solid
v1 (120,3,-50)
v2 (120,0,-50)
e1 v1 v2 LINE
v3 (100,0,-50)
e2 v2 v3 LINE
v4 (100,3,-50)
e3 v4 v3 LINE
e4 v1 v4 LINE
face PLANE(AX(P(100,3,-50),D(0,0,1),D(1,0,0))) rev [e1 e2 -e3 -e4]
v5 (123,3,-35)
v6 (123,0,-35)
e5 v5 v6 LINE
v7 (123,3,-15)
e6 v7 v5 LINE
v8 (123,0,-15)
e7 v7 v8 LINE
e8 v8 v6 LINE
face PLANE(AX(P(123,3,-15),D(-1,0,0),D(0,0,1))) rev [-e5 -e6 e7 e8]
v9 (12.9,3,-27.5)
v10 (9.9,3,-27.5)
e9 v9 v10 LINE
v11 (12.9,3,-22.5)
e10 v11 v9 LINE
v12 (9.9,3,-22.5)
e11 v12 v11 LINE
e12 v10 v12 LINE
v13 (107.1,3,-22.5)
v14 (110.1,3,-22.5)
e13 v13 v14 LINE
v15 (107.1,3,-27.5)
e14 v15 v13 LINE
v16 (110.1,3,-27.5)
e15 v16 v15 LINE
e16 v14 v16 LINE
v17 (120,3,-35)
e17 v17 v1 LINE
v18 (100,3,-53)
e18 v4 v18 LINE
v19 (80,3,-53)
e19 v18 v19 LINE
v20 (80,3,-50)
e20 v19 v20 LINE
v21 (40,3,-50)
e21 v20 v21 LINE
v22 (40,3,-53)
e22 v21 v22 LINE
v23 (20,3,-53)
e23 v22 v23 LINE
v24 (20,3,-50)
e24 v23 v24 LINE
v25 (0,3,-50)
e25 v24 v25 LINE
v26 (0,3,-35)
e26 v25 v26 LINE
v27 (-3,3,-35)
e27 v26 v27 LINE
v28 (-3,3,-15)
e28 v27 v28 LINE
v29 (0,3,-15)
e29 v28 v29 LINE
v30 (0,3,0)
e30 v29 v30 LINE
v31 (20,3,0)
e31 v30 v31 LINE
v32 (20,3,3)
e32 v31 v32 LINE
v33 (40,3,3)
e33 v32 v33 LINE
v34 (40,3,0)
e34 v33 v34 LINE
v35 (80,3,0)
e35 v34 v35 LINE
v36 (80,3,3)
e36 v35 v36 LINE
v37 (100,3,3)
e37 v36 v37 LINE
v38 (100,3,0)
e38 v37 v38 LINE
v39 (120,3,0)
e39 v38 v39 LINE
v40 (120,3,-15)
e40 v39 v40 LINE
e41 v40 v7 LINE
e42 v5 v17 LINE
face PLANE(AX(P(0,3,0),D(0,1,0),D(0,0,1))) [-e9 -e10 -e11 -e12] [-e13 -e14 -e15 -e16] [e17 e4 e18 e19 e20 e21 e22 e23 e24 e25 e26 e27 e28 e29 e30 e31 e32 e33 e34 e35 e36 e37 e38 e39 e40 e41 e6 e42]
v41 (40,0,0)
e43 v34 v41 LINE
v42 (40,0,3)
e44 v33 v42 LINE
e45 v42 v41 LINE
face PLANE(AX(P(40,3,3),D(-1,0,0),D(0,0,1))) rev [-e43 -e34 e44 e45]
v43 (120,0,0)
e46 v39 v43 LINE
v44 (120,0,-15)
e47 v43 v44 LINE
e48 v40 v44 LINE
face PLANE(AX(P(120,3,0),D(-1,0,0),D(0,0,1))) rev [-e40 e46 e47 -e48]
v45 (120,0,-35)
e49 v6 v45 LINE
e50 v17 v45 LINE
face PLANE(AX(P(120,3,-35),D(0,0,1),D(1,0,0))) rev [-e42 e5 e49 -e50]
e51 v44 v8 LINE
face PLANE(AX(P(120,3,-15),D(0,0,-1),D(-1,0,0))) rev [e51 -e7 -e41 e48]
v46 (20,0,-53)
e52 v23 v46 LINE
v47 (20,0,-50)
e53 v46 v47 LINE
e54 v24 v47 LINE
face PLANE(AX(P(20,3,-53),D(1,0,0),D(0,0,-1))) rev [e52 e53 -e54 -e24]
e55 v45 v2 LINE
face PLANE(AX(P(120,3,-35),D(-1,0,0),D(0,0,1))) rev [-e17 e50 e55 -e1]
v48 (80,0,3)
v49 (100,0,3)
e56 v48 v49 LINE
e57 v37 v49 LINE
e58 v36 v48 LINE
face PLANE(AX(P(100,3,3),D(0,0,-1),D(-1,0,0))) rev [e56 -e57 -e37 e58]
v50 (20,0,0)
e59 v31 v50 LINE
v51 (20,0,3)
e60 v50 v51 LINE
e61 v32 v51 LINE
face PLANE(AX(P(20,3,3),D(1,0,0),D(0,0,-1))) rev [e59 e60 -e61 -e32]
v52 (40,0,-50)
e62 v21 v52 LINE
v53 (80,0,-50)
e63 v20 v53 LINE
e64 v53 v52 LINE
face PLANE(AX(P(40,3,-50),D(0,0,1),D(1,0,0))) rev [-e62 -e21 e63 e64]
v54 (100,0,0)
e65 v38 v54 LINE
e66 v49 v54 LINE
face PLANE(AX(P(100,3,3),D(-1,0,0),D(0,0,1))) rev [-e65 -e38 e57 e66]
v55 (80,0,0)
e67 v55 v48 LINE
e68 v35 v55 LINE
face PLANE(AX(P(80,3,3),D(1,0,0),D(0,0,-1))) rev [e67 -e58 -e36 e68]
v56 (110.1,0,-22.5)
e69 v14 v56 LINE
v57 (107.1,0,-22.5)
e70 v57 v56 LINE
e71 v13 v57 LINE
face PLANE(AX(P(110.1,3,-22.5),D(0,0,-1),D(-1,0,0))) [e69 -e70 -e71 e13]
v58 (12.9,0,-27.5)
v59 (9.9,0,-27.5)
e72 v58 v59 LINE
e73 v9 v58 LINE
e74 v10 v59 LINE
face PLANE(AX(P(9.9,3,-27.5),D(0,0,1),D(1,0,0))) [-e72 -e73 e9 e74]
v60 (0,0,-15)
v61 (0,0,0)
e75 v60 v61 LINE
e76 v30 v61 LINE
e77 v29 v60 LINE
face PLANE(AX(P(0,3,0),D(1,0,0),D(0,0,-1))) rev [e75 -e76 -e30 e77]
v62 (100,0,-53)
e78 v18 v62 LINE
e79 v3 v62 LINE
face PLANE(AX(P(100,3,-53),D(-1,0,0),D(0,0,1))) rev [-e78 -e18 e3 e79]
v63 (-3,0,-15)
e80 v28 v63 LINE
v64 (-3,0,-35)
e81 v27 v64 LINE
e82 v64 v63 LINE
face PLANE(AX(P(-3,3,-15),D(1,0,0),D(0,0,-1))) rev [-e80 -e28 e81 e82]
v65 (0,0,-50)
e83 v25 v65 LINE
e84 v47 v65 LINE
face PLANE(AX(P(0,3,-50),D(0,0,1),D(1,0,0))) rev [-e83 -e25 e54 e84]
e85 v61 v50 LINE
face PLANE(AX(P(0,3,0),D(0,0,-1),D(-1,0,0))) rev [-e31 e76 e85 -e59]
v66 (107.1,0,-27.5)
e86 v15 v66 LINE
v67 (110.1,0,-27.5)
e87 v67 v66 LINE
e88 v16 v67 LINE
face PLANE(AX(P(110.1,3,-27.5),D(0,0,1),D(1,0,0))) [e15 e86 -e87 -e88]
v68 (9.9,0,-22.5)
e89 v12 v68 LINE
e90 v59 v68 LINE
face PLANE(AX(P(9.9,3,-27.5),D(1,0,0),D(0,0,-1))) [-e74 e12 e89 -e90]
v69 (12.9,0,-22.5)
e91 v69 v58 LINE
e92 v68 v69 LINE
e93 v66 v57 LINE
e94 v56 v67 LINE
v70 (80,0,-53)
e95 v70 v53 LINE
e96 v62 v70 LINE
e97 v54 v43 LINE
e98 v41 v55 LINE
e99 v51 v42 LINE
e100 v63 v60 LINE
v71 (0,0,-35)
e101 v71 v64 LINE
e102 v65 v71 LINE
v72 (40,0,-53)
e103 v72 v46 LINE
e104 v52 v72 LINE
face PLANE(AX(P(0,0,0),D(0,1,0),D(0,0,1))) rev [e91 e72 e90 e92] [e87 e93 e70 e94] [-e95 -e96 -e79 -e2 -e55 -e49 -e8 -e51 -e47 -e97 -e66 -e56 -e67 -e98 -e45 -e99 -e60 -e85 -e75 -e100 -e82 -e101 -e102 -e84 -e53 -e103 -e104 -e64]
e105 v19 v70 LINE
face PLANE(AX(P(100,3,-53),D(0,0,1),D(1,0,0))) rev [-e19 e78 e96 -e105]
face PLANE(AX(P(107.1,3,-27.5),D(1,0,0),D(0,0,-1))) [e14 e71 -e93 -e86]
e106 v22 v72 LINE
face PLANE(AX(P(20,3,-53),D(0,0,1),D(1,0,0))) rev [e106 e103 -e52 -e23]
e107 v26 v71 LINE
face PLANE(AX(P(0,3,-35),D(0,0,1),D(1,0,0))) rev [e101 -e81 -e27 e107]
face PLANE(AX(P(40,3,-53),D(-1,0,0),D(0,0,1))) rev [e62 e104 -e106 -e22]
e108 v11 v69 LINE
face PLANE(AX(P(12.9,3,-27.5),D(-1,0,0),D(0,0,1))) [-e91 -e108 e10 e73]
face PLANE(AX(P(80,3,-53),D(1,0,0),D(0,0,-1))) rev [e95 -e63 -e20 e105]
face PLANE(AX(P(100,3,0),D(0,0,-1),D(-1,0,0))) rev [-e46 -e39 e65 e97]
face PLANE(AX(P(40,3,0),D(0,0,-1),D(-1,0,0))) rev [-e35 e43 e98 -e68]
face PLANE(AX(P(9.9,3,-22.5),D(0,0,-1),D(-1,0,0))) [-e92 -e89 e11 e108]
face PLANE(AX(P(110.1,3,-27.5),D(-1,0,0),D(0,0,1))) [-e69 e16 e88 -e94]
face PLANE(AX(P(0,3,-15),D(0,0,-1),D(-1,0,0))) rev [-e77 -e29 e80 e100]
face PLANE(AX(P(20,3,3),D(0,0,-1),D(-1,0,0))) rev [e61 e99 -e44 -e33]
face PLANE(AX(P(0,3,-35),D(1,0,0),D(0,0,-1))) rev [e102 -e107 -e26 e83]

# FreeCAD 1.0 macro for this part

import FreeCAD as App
import Part
import Sketcher
Q = App.Units.Quantity

doc = App.newDocument("Part")
params = doc.addObject("Spreadsheet::Sheet", "Params")
for row, (alias, value) in enumerate([
    ("sketch1_width", "20 mm"),
    ("sketch1_width2", "40 mm"),
    ("sketch1_width3", "3 mm"),
    ("sketch1_height", "15 mm"),
    ("sketch1_height2", "5 mm"),
    ("pad1_length", "3 mm"),
], start=1):
    params.set(f"A{row}", alias)
    params.set(f"B{row}", "=" + value)
    params.setAlias(f"B{row}", alias)

body = doc.addObject("PartDesign::Body", "Body")

# Sketch on XZ plane
sketch1 = body.newObject("Sketcher::SketchObject", "Sketch")
sketch1.AttachmentSupport = (doc.getObject("XZ_Plane"), [""])
sketch1.MapMode = "FlatFace"
sketch1.addGeometry([
    Part.LineSegment(App.Vector(0, 0, 0), App.Vector(20, 0, 0)),  # 0
    Part.LineSegment(App.Vector(20, 0, 0), App.Vector(20, 3, 0)),  # 1
    Part.LineSegment(App.Vector(20, 3, 0), App.Vector(40, 3, 0)),  # 2
    Part.LineSegment(App.Vector(40, 3, 0), App.Vector(40, 0, 0)),  # 3
    Part.LineSegment(App.Vector(40, 0, 0), App.Vector(80, 0, 0)),  # 4
    Part.LineSegment(App.Vector(80, 0, 0), App.Vector(80, 3, 0)),  # 5
    Part.LineSegment(App.Vector(80, 3, 0), App.Vector(100, 3, 0)),  # 6
    Part.LineSegment(App.Vector(100, 3, 0), App.Vector(100, 0, 0)),  # 7
    Part.LineSegment(App.Vector(100, 0, 0), App.Vector(120, 0, 0)),  # 8
    Part.LineSegment(App.Vector(120, 0, 0), App.Vector(120, -15, 0)),  # 9
    Part.LineSegment(App.Vector(120, -15, 0), App.Vector(123, -15, 0)),  # 10
    Part.LineSegment(App.Vector(123, -15, 0), App.Vector(123, -35, 0)),  # 11
    Part.LineSegment(App.Vector(123, -35, 0), App.Vector(120, -35, 0)),  # 12
    Part.LineSegment(App.Vector(120, -35, 0), App.Vector(120, -50, 0)),  # 13
    Part.LineSegment(App.Vector(120, -50, 0), App.Vector(100, -50, 0)),  # 14
    Part.LineSegment(App.Vector(100, -50, 0), App.Vector(100, -53, 0)),  # 15
    Part.LineSegment(App.Vector(100, -53, 0), App.Vector(80, -53, 0)),  # 16
    Part.LineSegment(App.Vector(80, -53, 0), App.Vector(80, -50, 0)),  # 17
    Part.LineSegment(App.Vector(80, -50, 0), App.Vector(40, -50, 0)),  # 18
    Part.LineSegment(App.Vector(40, -50, 0), App.Vector(40, -53, 0)),  # 19
    Part.LineSegment(App.Vector(40, -53, 0), App.Vector(20, -53, 0)),  # 20
    Part.LineSegment(App.Vector(20, -53, 0), App.Vector(20, -50, 0)),  # 21
    Part.LineSegment(App.Vector(20, -50, 0), App.Vector(0, -50, 0)),  # 22
    Part.LineSegment(App.Vector(0, -50, 0), App.Vector(0, -35, 0)),  # 23
    Part.LineSegment(App.Vector(0, -35, 0), App.Vector(-3, -35, 0)),  # 24
    Part.LineSegment(App.Vector(-3, -35, 0), App.Vector(-3, -15, 0)),  # 25
    Part.LineSegment(App.Vector(-3, -15, 0), App.Vector(0, -15, 0)),  # 26
    Part.LineSegment(App.Vector(0, -15, 0), App.Vector(0, 0, 0)),  # 27
    Part.LineSegment(App.Vector(12.9, -22.5, 0), App.Vector(9.9, -22.5, 0)),  # 28
    Part.LineSegment(App.Vector(9.9, -22.5, 0), App.Vector(9.9, -27.5, 0)),  # 29
    Part.LineSegment(App.Vector(9.9, -27.5, 0), App.Vector(12.9, -27.5, 0)),  # 30
    Part.LineSegment(App.Vector(12.9, -27.5, 0), App.Vector(12.9, -22.5, 0)),  # 31
    Part.LineSegment(App.Vector(110.1, -22.5, 0), App.Vector(107.1, -22.5, 0)),  # 32
    Part.LineSegment(App.Vector(107.1, -22.5, 0), App.Vector(107.1, -27.5, 0)),  # 33
    Part.LineSegment(App.Vector(107.1, -27.5, 0), App.Vector(110.1, -27.5, 0)),  # 34
    Part.LineSegment(App.Vector(110.1, -27.5, 0), App.Vector(110.1, -22.5, 0)),  # 35
], False)
sketch1.addConstraint([
    Sketcher.Constraint("Coincident", 0, 2, 1, 1),
    Sketcher.Constraint("Coincident", 1, 2, 2, 1),
    Sketcher.Constraint("Coincident", 2, 2, 3, 1),
    Sketcher.Constraint("Coincident", 3, 2, 4, 1),
    Sketcher.Constraint("Coincident", 4, 2, 5, 1),
    Sketcher.Constraint("Coincident", 5, 2, 6, 1),
    Sketcher.Constraint("Coincident", 6, 2, 7, 1),
    Sketcher.Constraint("Coincident", 7, 2, 8, 1),
    Sketcher.Constraint("Coincident", 8, 2, 9, 1),
    Sketcher.Constraint("Coincident", 9, 2, 10, 1),
    Sketcher.Constraint("Coincident", 10, 2, 11, 1),
    Sketcher.Constraint("Coincident", 11, 2, 12, 1),
    Sketcher.Constraint("Coincident", 12, 2, 13, 1),
    Sketcher.Constraint("Coincident", 13, 2, 14, 1),
    Sketcher.Constraint("Coincident", 14, 2, 15, 1),
    Sketcher.Constraint("Coincident", 15, 2, 16, 1),
    Sketcher.Constraint("Coincident", 16, 2, 17, 1),
    Sketcher.Constraint("Coincident", 17, 2, 18, 1),
    Sketcher.Constraint("Coincident", 18, 2, 19, 1),
    Sketcher.Constraint("Coincident", 19, 2, 20, 1),
    Sketcher.Constraint("Coincident", 20, 2, 21, 1),
    Sketcher.Constraint("Coincident", 21, 2, 22, 1),
    Sketcher.Constraint("Coincident", 22, 2, 23, 1),
    Sketcher.Constraint("Coincident", 23, 2, 24, 1),
    Sketcher.Constraint("Coincident", 24, 2, 25, 1),
    Sketcher.Constraint("Coincident", 25, 2, 26, 1),
    Sketcher.Constraint("Coincident", 26, 2, 27, 1),
    Sketcher.Constraint("Coincident", 27, 2, 0, 1),
    Sketcher.Constraint("Coincident", 28, 2, 29, 1),
    Sketcher.Constraint("Coincident", 29, 2, 30, 1),
    Sketcher.Constraint("Coincident", 30, 2, 31, 1),
    Sketcher.Constraint("Coincident", 31, 2, 28, 1),
    Sketcher.Constraint("Coincident", 32, 2, 33, 1),
    Sketcher.Constraint("Coincident", 33, 2, 34, 1),
    Sketcher.Constraint("Coincident", 34, 2, 35, 1),
    Sketcher.Constraint("Coincident", 35, 2, 32, 1),
    Sketcher.Constraint("Horizontal", 0),
    Sketcher.Constraint("Vertical", 1),
    Sketcher.Constraint("Horizontal", 2),
    Sketcher.Constraint("Vertical", 3),
    Sketcher.Constraint("Horizontal", 4),
    Sketcher.Constraint("Vertical", 5),
    Sketcher.Constraint("Horizontal", 6),
    Sketcher.Constraint("Vertical", 7),
    Sketcher.Constraint("Horizontal", 8),
    Sketcher.Constraint("Vertical", 9),
    Sketcher.Constraint("Horizontal", 10),
    Sketcher.Constraint("Vertical", 11),
    Sketcher.Constraint("Horizontal", 12),
    Sketcher.Constraint("Vertical", 13),
    Sketcher.Constraint("Horizontal", 14),
    Sketcher.Constraint("Vertical", 15),
    Sketcher.Constraint("Horizontal", 16),
    Sketcher.Constraint("Vertical", 17),
    Sketcher.Constraint("Horizontal", 18),
    Sketcher.Constraint("Vertical", 19),
    Sketcher.Constraint("Horizontal", 20),
    Sketcher.Constraint("Vertical", 21),
    Sketcher.Constraint("Horizontal", 22),
    Sketcher.Constraint("Vertical", 23),
    Sketcher.Constraint("Horizontal", 24),
    Sketcher.Constraint("Vertical", 25),
    Sketcher.Constraint("Horizontal", 26),
    Sketcher.Constraint("Vertical", 27),
    Sketcher.Constraint("Horizontal", 28),
    Sketcher.Constraint("Vertical", 29),
    Sketcher.Constraint("Horizontal", 30),
    Sketcher.Constraint("Vertical", 31),
    Sketcher.Constraint("Horizontal", 32),
    Sketcher.Constraint("Vertical", 33),
    Sketcher.Constraint("Horizontal", 34),
    Sketcher.Constraint("Vertical", 35),
    Sketcher.Constraint("Coincident", 27, 2, -1, 1),
    Sketcher.Constraint("PointOnObject", 3, 2, -1),
    Sketcher.Constraint("PointOnObject", 7, 2, -1),
    Sketcher.Constraint("PointOnObject", 22, 2, -2),
    Sketcher.Constraint("Horizontal", 2, 2, 5, 2),
    Sketcher.Constraint("Horizontal", 14, 2, 17, 2),
    Sketcher.Constraint("Horizontal", 16, 2, 19, 2),
    Sketcher.Constraint("Horizontal", 18, 2, 21, 2),
    Sketcher.Constraint("Horizontal", 12, 2, 23, 2),
    Sketcher.Constraint("Horizontal", 10, 2, 25, 2),
    Sketcher.Constraint("Horizontal", 31, 2, 32, 2),
    Sketcher.Constraint("Horizontal", 30, 2, 33, 2),
    Sketcher.Constraint("Vertical", 9, 2, 12, 2),
    Sketcher.Constraint("Vertical", 7, 2, 14, 2),
    Sketcher.Constraint("Vertical", 5, 2, 16, 2),
    Sketcher.Constraint("Vertical", 3, 2, 18, 2),
    Sketcher.Constraint("Vertical", 1, 2, 20, 2),
    Sketcher.Constraint("Equal", 0, 2),
    Sketcher.Constraint("Equal", 2, 6),
    Sketcher.Constraint("Equal", 6, 8),
    Sketcher.Constraint("Equal", 12, 24),
    Sketcher.Constraint("Equal", 26, 28),
    Sketcher.Constraint("Equal", 30, 32),
    Sketcher.Constraint("Equal", 34, 1),
    Sketcher.Constraint("Equal", 22, 11),
    Sketcher.Constraint("Equal", 9, 13),
    Sketcher.Constraint("Equal", 7, 15),
    Sketcher.Constraint("DistanceX", 0, 1, 0, 2, Q("20 mm")),
    Sketcher.Constraint("DistanceX", 4, 1, 4, 2, Q("40 mm")),
    Sketcher.Constraint("DistanceX", 10, 1, 10, 2, Q("3 mm")),
    Sketcher.Constraint("DistanceY", 9, 2, 9, 1, Q("15 mm")),
    Sketcher.Constraint("DistanceY", 29, 2, 29, 1, Q("5 mm")),
    Sketcher.Constraint("DistanceX", -1, 1, 28, 2, Q("9.9 mm")),
    Sketcher.Constraint("DistanceY", 28, 2, -1, 1, Q("22.5 mm")),
    Sketcher.Constraint("DistanceX", -1, 1, 32, 2, Q("107.1 mm")),
])
sketch1.setExpression("Constraints[99]", "Params.sketch1_width")
sketch1.setExpression("Constraints[100]", "Params.sketch1_width2")
sketch1.setExpression("Constraints[101]", "Params.sketch1_width3")
sketch1.setExpression("Constraints[102]", "Params.sketch1_height")
sketch1.setExpression("Constraints[103]", "Params.sketch1_height2")
pad1 = body.newObject("PartDesign::Pad", "Pad")
pad1.Profile = sketch1
pad1.setExpression("Length", "Params.pad1_length")
pad1.Reversed = True

doc.recompute()
